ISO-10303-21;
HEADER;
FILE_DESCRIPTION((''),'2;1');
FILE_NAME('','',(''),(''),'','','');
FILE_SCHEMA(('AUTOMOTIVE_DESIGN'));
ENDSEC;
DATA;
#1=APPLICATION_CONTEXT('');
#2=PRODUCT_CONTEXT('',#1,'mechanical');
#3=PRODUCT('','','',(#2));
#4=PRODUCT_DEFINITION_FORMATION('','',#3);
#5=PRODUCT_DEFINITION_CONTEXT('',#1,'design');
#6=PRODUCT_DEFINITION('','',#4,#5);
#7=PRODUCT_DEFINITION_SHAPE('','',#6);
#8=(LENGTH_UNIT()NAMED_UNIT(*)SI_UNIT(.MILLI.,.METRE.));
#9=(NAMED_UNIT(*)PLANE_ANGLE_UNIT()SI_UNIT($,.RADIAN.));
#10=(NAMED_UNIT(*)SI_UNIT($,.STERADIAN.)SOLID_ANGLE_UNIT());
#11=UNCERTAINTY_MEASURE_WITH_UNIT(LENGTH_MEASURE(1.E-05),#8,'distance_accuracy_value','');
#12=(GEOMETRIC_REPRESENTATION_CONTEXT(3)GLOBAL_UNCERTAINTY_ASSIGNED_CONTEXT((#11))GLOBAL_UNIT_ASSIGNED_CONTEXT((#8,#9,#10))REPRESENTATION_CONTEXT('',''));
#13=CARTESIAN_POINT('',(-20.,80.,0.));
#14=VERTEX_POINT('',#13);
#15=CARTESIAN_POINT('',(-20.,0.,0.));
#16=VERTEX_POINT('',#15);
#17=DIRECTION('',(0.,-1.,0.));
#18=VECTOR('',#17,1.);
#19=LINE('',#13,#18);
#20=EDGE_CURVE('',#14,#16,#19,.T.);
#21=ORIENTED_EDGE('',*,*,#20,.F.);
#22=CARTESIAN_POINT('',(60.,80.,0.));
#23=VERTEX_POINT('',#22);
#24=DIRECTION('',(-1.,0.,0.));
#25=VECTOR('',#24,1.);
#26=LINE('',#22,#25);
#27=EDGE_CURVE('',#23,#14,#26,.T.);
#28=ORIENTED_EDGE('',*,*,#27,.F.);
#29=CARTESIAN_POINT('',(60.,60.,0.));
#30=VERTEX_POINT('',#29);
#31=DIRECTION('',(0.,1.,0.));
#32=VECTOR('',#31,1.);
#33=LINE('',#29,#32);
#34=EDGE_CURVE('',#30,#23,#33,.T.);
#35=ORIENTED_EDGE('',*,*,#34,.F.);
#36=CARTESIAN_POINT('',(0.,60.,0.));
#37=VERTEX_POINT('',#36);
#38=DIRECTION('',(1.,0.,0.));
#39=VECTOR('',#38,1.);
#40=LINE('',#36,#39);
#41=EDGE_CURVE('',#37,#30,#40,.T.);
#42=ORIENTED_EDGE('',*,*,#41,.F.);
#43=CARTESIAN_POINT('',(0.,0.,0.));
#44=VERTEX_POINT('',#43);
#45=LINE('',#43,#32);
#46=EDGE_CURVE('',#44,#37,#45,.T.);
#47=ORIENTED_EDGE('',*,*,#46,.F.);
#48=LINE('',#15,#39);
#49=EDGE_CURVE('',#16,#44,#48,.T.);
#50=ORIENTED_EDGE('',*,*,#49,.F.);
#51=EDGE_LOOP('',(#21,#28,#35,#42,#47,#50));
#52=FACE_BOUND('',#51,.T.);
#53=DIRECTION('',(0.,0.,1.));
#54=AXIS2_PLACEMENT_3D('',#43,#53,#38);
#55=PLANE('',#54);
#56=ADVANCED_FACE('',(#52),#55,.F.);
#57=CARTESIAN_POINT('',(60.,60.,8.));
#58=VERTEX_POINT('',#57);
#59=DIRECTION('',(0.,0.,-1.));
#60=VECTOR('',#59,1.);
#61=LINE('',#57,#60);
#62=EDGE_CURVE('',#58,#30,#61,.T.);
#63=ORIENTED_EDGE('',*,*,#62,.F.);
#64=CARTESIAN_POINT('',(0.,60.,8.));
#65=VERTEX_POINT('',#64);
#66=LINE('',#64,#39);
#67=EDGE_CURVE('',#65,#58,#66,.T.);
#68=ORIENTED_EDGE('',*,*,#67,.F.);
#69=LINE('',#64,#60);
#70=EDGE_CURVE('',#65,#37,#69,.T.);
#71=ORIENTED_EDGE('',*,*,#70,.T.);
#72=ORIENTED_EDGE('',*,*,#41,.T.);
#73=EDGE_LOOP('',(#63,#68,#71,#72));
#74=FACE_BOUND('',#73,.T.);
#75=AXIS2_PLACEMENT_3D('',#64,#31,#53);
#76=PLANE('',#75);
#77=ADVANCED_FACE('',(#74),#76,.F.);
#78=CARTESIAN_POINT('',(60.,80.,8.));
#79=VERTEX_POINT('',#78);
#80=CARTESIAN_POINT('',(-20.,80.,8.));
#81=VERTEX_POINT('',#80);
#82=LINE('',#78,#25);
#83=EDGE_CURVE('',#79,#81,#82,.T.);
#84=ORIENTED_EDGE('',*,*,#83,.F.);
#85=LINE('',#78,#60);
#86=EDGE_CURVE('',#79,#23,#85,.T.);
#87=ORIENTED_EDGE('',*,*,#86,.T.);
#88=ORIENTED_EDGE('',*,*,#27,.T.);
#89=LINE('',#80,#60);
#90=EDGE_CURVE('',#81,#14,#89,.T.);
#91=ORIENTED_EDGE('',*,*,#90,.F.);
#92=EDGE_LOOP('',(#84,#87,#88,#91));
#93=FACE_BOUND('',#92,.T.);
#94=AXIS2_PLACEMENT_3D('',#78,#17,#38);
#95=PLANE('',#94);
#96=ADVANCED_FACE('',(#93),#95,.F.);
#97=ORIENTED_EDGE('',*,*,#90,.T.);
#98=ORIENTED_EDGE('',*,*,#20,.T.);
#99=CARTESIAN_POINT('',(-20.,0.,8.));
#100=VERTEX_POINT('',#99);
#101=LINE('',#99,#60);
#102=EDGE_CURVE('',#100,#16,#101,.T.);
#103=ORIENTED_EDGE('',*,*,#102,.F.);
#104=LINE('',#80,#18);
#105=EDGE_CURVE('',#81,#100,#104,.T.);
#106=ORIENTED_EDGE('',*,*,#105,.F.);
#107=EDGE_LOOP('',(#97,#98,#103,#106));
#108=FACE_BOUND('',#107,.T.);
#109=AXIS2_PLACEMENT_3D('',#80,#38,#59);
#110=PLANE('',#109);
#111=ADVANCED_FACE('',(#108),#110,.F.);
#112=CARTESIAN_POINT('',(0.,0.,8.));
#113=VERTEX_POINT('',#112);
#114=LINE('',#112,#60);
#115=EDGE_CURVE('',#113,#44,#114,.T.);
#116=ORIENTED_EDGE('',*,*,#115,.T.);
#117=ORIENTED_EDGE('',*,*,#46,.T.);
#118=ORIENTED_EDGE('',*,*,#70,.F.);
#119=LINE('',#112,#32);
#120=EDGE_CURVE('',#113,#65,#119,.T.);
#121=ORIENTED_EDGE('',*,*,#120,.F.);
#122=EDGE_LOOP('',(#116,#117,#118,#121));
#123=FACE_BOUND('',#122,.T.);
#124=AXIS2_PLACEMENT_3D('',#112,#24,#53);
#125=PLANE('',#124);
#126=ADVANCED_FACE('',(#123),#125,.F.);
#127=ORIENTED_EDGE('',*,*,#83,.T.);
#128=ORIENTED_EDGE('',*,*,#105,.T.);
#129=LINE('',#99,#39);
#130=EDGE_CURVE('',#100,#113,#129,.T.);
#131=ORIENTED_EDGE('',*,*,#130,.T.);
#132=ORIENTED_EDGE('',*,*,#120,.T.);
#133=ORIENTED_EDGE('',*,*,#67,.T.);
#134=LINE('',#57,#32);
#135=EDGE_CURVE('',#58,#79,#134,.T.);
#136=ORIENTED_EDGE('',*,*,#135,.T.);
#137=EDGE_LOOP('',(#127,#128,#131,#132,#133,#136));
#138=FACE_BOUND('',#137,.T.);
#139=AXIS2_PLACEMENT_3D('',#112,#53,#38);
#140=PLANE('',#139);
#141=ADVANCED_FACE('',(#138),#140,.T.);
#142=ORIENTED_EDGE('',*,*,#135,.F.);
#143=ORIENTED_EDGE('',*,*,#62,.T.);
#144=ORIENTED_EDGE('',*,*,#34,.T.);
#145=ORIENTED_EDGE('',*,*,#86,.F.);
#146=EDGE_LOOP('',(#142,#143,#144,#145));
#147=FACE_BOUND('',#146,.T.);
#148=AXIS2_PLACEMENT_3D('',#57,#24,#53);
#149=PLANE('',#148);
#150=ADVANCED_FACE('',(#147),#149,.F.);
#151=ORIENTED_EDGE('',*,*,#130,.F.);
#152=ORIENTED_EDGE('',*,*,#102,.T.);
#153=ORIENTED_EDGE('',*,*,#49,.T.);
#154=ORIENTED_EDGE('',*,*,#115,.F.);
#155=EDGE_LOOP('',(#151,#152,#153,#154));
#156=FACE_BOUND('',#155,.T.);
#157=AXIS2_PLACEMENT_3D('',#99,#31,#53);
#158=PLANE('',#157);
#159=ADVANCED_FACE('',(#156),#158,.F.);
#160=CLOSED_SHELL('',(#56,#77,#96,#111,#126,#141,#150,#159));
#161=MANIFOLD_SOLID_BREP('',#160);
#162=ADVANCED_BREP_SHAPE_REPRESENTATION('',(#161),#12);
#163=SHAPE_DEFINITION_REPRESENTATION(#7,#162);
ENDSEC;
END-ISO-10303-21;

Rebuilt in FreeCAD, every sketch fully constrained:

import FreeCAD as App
import Part
import Sketcher

doc = App.newDocument("Part")
body = doc.addObject("PartDesign::Body", "Body")

# Sketch on XY plane
sketch1 = doc.addObject("Sketcher::SketchObject", "Sketch")
body.addObject(sketch1)
sketch1.AttachmentSupport = (doc.XY_Plane, [""])
sketch1.MapMode = "FlatFace"
sketch1.addGeometry(Part.LineSegment(App.Vector(0, 0, 0), App.Vector(0, 60, 0)), False)
sketch1.addGeometry(Part.LineSegment(App.Vector(0, 60, 0), App.Vector(60, 60, 0)), False)
sketch1.addGeometry(Part.LineSegment(App.Vector(60, 60, 0), App.Vector(60, 80, 0)), False)
sketch1.addGeometry(Part.LineSegment(App.Vector(60, 80, 0), App.Vector(-20, 80, 0)), False)
sketch1.addGeometry(Part.LineSegment(App.Vector(-20, 80, 0), App.Vector(-20, 0, 0)), False)
sketch1.addGeometry(Part.LineSegment(App.Vector(-20, 0, 0), App.Vector(0, 0, 0)), False)
sketch1.addConstraint(Sketcher.Constraint("Coincident", 0, 2, 1, 1))
sketch1.addConstraint(Sketcher.Constraint("Coincident", 1, 2, 2, 1))
sketch1.addConstraint(Sketcher.Constraint("Coincident", 2, 2, 3, 1))
sketch1.addConstraint(Sketcher.Constraint("Coincident", 3, 2, 4, 1))
sketch1.addConstraint(Sketcher.Constraint("Coincident", 4, 2, 5, 1))
sketch1.addConstraint(Sketcher.Constraint("Coincident", 5, 2, 0, 1))
sketch1.addConstraint(Sketcher.Constraint("Vertical", 0))
sketch1.addConstraint(Sketcher.Constraint("Horizontal", 1))
sketch1.addConstraint(Sketcher.Constraint("Vertical", 2))
sketch1.addConstraint(Sketcher.Constraint("Horizontal", 3))
sketch1.addConstraint(Sketcher.Constraint("Vertical", 4))
sketch1.addConstraint(Sketcher.Constraint("Horizontal", 5))
sketch1.addConstraint(Sketcher.Constraint("Coincident", 5, 2, -1, 1))
sketch1.addConstraint(Sketcher.Constraint("Equal", 1, 0))
sketch1.addConstraint(Sketcher.Constraint("Equal", 5, 2))
sketch1.addConstraint(Sketcher.Constraint("DistanceX", 1, 1, 1, 2, 60.0))
sketch1.addConstraint(Sketcher.Constraint("DistanceX", 3, 2, 3, 1, 80.0))
pad1 = doc.addObject("PartDesign::Pad", "Pad")
body.addObject(pad1)
pad1.Profile = sketch1
pad1.Length = 8

doc.recompute()
